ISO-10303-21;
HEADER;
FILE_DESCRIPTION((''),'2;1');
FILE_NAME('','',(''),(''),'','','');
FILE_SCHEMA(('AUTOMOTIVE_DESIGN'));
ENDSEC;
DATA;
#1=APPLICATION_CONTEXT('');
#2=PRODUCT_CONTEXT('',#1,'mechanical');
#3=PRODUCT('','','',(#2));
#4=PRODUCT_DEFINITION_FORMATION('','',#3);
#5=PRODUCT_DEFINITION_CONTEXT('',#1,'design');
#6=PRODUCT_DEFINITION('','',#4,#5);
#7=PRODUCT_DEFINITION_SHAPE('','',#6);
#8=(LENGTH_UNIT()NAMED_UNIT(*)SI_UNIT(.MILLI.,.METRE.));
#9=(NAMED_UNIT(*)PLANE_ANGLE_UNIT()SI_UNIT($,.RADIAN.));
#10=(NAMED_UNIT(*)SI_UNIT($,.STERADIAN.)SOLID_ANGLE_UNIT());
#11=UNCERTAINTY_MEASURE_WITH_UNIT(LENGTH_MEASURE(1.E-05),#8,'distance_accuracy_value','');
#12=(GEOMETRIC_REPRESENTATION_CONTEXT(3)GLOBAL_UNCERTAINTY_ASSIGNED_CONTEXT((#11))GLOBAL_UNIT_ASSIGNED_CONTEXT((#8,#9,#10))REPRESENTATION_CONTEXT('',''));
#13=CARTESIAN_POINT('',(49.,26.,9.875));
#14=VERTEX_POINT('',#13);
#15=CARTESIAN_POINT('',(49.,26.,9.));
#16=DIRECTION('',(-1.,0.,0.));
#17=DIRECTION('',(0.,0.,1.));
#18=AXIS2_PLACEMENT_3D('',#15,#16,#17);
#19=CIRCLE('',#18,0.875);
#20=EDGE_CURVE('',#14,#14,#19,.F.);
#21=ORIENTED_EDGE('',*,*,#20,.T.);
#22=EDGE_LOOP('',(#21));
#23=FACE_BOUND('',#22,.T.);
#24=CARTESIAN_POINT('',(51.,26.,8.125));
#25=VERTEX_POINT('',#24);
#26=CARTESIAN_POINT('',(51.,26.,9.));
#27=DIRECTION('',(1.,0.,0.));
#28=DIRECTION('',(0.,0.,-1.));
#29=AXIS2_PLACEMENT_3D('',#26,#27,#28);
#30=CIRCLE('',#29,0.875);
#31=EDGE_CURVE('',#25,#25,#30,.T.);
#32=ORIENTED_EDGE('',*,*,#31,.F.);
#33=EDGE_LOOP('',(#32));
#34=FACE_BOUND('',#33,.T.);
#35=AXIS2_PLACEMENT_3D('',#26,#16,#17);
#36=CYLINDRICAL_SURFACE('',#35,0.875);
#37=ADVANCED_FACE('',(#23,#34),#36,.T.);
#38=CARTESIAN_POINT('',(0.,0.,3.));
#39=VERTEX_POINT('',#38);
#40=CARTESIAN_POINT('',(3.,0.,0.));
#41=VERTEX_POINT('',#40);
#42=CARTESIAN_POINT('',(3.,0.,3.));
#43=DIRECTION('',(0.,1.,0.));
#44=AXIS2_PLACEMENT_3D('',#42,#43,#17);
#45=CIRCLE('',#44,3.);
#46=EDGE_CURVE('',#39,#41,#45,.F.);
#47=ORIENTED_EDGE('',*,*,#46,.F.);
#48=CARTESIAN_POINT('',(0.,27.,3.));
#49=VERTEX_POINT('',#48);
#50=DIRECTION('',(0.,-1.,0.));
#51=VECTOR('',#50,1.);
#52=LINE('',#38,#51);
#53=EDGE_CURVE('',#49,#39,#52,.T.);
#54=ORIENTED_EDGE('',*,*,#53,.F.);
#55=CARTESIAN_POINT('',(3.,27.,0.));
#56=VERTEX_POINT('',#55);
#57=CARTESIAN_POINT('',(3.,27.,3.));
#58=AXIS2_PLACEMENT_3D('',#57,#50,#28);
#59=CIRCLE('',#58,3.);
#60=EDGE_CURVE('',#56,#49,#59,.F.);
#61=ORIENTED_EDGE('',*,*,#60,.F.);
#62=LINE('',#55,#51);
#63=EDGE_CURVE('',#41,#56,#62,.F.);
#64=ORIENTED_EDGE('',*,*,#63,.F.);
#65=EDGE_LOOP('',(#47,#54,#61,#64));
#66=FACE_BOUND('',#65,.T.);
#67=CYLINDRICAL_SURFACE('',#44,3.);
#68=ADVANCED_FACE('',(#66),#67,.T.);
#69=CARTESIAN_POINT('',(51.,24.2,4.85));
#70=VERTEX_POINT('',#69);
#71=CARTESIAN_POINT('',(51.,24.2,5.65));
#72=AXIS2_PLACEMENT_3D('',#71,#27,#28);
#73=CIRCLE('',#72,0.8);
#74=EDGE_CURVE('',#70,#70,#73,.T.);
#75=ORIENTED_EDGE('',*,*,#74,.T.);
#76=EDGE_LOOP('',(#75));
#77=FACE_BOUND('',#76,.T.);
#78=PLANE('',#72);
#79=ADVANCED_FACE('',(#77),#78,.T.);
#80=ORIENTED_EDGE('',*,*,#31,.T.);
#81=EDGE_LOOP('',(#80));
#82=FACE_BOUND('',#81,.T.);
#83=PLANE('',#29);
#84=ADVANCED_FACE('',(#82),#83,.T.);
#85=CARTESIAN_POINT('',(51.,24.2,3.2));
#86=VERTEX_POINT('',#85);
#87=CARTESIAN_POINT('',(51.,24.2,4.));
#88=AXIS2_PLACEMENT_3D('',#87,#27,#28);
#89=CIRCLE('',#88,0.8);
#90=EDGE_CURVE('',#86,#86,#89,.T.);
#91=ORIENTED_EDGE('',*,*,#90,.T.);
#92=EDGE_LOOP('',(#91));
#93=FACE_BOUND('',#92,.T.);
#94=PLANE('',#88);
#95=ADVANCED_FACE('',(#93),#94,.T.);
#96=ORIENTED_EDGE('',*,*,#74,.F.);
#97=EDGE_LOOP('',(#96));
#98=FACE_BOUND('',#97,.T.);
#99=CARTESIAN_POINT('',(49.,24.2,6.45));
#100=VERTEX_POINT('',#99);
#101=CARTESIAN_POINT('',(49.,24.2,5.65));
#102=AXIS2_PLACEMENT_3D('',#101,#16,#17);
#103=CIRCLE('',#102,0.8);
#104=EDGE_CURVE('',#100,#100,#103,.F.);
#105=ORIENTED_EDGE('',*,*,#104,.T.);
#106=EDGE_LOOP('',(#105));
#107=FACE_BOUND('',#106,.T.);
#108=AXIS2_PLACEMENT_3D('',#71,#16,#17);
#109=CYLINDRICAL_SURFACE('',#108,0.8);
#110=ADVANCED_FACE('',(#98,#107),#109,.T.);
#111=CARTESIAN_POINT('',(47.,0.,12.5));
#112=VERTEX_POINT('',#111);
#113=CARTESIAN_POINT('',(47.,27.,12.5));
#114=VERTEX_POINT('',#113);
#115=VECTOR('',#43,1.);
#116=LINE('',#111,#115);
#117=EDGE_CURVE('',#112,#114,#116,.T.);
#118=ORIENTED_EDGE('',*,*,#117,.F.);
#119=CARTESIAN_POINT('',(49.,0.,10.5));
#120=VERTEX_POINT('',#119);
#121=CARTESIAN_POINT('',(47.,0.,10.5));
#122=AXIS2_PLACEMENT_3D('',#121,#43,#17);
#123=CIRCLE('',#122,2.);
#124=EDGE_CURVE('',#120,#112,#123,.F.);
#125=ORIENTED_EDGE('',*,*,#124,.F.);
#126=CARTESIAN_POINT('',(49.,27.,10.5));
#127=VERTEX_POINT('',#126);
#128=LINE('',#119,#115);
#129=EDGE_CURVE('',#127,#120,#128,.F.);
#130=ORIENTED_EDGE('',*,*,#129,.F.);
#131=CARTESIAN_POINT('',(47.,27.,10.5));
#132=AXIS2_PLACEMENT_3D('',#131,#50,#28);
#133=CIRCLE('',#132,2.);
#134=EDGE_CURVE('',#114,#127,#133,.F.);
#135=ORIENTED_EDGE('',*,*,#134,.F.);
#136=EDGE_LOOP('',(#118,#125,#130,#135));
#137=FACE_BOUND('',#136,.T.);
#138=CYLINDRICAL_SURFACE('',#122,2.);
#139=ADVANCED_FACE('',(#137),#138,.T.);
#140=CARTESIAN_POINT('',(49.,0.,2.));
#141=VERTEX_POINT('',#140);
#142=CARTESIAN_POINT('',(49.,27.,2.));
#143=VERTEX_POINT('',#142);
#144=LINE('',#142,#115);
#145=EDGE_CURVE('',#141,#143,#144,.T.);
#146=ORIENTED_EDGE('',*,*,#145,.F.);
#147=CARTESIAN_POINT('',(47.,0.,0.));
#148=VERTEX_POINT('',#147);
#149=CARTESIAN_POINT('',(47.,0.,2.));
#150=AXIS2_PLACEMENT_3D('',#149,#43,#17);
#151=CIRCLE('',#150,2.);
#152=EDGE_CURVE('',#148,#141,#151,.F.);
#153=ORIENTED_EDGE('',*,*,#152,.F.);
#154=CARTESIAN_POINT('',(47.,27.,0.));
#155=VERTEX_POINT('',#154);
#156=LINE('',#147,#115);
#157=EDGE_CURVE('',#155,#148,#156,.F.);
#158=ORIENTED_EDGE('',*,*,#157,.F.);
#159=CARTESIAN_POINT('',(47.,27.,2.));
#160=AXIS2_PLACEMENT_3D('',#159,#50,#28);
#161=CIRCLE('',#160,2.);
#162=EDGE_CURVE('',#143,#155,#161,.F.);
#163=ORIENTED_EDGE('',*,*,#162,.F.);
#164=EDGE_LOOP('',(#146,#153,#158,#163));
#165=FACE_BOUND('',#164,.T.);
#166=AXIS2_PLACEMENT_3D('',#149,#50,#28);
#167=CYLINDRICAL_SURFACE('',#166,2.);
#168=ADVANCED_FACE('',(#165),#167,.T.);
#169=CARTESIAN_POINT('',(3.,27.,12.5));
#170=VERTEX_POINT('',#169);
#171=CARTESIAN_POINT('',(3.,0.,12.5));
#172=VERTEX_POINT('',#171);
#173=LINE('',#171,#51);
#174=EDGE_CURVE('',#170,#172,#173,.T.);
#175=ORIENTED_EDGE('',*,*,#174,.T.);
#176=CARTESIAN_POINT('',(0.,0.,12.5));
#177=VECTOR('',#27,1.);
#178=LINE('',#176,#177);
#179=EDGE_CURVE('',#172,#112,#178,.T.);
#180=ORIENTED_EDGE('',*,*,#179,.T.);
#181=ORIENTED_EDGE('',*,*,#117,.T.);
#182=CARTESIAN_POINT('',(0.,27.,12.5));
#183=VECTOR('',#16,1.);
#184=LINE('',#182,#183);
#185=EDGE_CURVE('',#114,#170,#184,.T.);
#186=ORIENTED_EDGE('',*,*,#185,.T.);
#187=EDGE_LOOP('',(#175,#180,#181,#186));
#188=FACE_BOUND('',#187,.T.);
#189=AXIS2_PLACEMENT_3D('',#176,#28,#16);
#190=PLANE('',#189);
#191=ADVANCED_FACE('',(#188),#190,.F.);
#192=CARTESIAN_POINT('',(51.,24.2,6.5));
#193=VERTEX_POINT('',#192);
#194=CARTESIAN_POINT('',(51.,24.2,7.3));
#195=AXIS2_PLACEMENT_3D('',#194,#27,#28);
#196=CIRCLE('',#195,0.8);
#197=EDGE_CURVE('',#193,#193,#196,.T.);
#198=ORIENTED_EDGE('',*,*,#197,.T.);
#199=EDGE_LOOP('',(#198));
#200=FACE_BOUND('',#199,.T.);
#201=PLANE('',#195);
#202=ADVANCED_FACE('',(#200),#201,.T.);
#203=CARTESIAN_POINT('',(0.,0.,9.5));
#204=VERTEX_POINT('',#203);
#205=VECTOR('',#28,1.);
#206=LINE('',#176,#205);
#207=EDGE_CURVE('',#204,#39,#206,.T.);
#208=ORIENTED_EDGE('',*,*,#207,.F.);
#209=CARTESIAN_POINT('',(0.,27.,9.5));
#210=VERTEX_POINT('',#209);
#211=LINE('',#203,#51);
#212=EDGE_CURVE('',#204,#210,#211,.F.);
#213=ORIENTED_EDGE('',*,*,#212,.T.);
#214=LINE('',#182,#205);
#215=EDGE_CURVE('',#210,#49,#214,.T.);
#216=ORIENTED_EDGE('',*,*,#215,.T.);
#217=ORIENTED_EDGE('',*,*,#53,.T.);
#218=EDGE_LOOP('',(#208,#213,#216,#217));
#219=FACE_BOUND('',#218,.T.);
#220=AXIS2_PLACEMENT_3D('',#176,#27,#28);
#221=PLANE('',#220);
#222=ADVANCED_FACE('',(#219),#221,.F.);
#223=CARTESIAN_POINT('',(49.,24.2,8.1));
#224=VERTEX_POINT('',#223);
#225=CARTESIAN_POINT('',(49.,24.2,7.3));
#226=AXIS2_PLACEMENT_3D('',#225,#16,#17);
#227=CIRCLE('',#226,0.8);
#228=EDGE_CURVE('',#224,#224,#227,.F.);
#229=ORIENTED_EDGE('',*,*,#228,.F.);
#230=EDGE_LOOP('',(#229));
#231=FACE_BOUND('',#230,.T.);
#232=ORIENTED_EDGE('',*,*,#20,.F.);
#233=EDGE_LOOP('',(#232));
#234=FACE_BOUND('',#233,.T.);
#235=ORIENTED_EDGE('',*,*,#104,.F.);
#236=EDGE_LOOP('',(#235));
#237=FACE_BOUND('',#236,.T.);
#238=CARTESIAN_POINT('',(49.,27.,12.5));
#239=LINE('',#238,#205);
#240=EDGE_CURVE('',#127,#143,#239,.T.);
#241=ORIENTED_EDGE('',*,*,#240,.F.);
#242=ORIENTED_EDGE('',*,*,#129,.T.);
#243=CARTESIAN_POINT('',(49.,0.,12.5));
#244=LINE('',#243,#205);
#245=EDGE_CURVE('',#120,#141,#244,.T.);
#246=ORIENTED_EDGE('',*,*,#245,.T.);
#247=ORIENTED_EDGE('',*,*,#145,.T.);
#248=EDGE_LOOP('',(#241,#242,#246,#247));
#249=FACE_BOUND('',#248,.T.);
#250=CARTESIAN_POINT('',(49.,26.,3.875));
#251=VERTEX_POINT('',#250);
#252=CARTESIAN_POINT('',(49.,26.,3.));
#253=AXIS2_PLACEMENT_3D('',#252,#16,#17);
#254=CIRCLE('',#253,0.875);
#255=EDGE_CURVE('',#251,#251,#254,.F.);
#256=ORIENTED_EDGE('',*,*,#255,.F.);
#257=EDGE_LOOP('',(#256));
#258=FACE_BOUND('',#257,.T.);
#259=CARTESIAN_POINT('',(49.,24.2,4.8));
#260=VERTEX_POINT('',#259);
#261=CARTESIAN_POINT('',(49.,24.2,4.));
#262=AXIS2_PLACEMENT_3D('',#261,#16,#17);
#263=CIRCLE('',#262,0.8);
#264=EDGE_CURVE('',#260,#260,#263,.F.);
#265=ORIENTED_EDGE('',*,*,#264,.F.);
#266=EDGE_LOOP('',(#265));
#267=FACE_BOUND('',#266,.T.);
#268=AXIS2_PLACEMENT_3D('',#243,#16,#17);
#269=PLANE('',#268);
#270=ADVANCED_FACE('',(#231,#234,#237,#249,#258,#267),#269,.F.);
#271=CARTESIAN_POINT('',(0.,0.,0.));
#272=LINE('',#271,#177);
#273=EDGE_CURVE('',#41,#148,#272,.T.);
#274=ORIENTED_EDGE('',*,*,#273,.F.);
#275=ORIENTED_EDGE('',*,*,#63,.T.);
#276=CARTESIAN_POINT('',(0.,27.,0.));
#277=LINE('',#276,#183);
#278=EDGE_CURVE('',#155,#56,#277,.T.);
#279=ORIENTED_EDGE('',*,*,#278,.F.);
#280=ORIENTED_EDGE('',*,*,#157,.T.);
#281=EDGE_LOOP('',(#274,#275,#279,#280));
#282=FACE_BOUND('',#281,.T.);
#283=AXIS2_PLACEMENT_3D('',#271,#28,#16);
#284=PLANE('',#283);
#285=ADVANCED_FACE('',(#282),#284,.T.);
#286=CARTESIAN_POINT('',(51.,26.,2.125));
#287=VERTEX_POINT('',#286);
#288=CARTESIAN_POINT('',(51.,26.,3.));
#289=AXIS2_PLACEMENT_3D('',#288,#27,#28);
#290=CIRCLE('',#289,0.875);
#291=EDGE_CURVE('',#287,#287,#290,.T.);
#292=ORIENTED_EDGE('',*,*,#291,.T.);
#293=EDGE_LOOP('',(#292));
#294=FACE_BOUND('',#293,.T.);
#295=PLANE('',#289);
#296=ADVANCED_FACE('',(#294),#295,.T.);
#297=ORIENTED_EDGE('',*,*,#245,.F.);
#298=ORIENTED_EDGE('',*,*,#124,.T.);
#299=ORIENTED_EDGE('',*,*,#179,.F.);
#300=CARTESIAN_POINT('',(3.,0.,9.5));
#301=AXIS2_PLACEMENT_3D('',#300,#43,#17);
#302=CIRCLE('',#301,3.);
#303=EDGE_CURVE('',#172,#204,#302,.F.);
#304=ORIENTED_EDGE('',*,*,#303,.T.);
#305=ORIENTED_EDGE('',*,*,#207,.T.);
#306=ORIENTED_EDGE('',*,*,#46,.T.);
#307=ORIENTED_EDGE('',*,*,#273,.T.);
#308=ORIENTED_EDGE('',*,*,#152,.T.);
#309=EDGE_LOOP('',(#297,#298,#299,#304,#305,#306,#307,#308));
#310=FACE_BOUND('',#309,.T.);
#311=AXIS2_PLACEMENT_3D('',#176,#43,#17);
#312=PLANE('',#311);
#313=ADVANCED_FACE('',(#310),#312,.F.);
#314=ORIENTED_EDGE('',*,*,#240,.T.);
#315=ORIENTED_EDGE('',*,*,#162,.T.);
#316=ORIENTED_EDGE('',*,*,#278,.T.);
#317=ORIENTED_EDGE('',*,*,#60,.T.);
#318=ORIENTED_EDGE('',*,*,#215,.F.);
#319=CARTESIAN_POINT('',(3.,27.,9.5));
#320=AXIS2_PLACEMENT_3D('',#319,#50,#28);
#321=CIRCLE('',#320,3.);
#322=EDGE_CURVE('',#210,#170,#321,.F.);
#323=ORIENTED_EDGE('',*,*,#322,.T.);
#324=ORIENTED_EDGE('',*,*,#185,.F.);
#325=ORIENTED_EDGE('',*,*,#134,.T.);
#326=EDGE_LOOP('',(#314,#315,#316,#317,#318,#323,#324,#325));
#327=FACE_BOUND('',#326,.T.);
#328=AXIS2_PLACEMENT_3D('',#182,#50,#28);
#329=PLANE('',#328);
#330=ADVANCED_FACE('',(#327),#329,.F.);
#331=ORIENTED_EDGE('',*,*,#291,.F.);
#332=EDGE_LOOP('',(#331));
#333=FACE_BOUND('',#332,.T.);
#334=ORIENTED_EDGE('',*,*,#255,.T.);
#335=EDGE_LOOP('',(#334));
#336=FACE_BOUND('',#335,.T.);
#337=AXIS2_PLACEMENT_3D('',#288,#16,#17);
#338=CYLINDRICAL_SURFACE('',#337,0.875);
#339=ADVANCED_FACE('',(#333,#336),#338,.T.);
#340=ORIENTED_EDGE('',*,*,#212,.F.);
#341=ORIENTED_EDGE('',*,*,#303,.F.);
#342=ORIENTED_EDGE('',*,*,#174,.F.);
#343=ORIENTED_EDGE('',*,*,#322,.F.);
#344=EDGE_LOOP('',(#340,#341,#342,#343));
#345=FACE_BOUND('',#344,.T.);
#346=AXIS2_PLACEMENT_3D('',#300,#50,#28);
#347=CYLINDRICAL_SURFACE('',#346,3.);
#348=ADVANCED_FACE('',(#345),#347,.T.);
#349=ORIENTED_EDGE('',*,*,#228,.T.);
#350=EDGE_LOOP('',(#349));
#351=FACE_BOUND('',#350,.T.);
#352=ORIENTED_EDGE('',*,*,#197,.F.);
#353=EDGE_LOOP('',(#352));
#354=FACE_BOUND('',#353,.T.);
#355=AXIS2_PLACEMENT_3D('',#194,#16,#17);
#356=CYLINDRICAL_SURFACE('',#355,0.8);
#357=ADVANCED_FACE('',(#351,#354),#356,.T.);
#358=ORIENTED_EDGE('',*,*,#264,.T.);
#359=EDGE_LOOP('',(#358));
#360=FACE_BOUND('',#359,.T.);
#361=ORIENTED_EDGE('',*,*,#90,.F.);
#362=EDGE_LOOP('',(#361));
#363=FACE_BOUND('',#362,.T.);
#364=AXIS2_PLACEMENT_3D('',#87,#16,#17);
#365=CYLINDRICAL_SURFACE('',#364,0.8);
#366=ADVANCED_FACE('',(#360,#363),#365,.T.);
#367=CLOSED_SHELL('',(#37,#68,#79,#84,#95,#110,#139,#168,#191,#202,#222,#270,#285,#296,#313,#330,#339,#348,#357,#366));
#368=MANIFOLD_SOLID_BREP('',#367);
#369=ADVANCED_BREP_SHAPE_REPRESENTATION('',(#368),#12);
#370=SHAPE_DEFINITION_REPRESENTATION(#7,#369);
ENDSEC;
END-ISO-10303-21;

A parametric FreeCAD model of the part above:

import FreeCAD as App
import Part
import Sketcher
Q = App.Units.Quantity


def edges_at(feature, points):
    """Names of the edges that pass closest to the given points."""
    edges = feature.Shape.Edges
    near = lambda p: min(range(len(edges)), key=lambda i: edges[i].distToShape(Part.Vertex(*p))[0])
    return sorted({f"Edge{near(p) + 1}" for p in points})


def add_polygon(sketch, points):
    """Adds a closed chain of lines whose ends are joined by coincident constraints."""
    first, n = sketch.GeometryCount, len(points)
    for a, b in zip(points, points[1:] + points[:1]):
        sketch.addGeometry(Part.LineSegment(App.Vector(*a, 0), App.Vector(*b, 0)), False)
    for i in range(n):
        sketch.addConstraint(Sketcher.Constraint("Coincident", first + i, 2, first + (i + 1) % n, 1))

doc = App.newDocument("Part")
body = doc.addObject("PartDesign::Body", "Body")

sketch1 = body.newObject("Sketcher::SketchObject", "Sketch")
sketch1.AttachmentSupport = (doc.getObject("XY_Plane"), [""])
sketch1.MapMode = "FlatFace"
add_polygon(sketch1, [(0, 27), (0, 0), (49, 0), (49, 27)])
sketch1.addConstraint([
    Sketcher.Constraint("Vertical", 0),
    Sketcher.Constraint("Horizontal", 1),
    Sketcher.Constraint("Vertical", 2),
    Sketcher.Constraint("Horizontal", 3),
    Sketcher.Constraint("Coincident", 0, 2, -1, 1),
    Sketcher.Constraint("DistanceX", 1, 1, 1, 2, Q("49 mm")),
    Sketcher.Constraint("DistanceY", 0, 2, 0, 1, Q("27 mm")),
])
pad1 = body.newObject("PartDesign::Pad", "Pad")
pad1.Profile = sketch1
pad1.Length = 12.5
doc.recompute()

fillet = body.newObject("PartDesign::Fillet", "Fillet")
fillet.Base = (pad1, edges_at(pad1, [(49, 13.5, 12.5), (49, 13.5, 0)]))
fillet.Radius = 2
doc.recompute()

fillet2 = body.newObject("PartDesign::Fillet", "Fillet001")
fillet2.Base = (fillet, edges_at(fillet, [(0, 13.5, 12.5), (0, 13.5, 0)]))
fillet2.Radius = 3

sketch2 = body.newObject("Sketcher::SketchObject", "Sketch001")
sketch2.AttachmentSupport = (doc.getObject("YZ_Plane"), [""])
sketch2.MapMode = "FlatFace"
sketch2.AttachmentOffset = App.Placement(App.Vector(0, 0, 49), App.Rotation())
sketch2.addGeometry([
    Part.Circle(App.Vector(26, 9, 0), App.Vector(0, 0, 1), 0.9),
    Part.Circle(App.Vector(26, 3, 0), App.Vector(0, 0, 1), 0.9),
    Part.Circle(App.Vector(24.2, 4, 0), App.Vector(0, 0, 1), 0.8),
    Part.Circle(App.Vector(24.2, 5.7, 0), App.Vector(0, 0, 1), 0.8),
    Part.Circle(App.Vector(24.2, 7.3, 0), App.Vector(0, 0, 1), 0.8),
], False)
sketch2.addConstraint([
    Sketcher.Constraint("Equal", 0, 1),
    Sketcher.Constraint("Equal", 2, 3),
    Sketcher.Constraint("Equal", 3, 4),
    Sketcher.Constraint("Vertical", 0, 3, 1, 3),
    Sketcher.Constraint("Vertical", 2, 3, 3, 3),
    Sketcher.Constraint("Vertical", 3, 3, 4, 3),
    Sketcher.Constraint("Diameter", 2, Q("1.6 mm")),
    Sketcher.Constraint("Diameter", 0, Q("1.75 mm")),
    Sketcher.Constraint("DistanceX", -1, 1, 0, 3, Q("26 mm")),
    Sketcher.Constraint("DistanceY", -1, 1, 0, 3, Q("9 mm")),
    Sketcher.Constraint("DistanceY", -1, 1, 1, 3, Q("3 mm")),
    Sketcher.Constraint("DistanceY", -1, 1, 2, 3, Q("4 mm")),
    Sketcher.Constraint("DistanceX", -1, 1, 2, 3, Q("24.2 mm")),
    Sketcher.Constraint("DistanceY", -1, 1, 4, 3, Q("7.3 mm")),
    Sketcher.Constraint("DistanceY", -1, 1, 3, 3, Q("5.65 mm")),
])
pad2 = body.newObject("PartDesign::Pad", "Pad001")
pad2.Profile = sketch2
pad2.Length = 2

doc.recompute()
